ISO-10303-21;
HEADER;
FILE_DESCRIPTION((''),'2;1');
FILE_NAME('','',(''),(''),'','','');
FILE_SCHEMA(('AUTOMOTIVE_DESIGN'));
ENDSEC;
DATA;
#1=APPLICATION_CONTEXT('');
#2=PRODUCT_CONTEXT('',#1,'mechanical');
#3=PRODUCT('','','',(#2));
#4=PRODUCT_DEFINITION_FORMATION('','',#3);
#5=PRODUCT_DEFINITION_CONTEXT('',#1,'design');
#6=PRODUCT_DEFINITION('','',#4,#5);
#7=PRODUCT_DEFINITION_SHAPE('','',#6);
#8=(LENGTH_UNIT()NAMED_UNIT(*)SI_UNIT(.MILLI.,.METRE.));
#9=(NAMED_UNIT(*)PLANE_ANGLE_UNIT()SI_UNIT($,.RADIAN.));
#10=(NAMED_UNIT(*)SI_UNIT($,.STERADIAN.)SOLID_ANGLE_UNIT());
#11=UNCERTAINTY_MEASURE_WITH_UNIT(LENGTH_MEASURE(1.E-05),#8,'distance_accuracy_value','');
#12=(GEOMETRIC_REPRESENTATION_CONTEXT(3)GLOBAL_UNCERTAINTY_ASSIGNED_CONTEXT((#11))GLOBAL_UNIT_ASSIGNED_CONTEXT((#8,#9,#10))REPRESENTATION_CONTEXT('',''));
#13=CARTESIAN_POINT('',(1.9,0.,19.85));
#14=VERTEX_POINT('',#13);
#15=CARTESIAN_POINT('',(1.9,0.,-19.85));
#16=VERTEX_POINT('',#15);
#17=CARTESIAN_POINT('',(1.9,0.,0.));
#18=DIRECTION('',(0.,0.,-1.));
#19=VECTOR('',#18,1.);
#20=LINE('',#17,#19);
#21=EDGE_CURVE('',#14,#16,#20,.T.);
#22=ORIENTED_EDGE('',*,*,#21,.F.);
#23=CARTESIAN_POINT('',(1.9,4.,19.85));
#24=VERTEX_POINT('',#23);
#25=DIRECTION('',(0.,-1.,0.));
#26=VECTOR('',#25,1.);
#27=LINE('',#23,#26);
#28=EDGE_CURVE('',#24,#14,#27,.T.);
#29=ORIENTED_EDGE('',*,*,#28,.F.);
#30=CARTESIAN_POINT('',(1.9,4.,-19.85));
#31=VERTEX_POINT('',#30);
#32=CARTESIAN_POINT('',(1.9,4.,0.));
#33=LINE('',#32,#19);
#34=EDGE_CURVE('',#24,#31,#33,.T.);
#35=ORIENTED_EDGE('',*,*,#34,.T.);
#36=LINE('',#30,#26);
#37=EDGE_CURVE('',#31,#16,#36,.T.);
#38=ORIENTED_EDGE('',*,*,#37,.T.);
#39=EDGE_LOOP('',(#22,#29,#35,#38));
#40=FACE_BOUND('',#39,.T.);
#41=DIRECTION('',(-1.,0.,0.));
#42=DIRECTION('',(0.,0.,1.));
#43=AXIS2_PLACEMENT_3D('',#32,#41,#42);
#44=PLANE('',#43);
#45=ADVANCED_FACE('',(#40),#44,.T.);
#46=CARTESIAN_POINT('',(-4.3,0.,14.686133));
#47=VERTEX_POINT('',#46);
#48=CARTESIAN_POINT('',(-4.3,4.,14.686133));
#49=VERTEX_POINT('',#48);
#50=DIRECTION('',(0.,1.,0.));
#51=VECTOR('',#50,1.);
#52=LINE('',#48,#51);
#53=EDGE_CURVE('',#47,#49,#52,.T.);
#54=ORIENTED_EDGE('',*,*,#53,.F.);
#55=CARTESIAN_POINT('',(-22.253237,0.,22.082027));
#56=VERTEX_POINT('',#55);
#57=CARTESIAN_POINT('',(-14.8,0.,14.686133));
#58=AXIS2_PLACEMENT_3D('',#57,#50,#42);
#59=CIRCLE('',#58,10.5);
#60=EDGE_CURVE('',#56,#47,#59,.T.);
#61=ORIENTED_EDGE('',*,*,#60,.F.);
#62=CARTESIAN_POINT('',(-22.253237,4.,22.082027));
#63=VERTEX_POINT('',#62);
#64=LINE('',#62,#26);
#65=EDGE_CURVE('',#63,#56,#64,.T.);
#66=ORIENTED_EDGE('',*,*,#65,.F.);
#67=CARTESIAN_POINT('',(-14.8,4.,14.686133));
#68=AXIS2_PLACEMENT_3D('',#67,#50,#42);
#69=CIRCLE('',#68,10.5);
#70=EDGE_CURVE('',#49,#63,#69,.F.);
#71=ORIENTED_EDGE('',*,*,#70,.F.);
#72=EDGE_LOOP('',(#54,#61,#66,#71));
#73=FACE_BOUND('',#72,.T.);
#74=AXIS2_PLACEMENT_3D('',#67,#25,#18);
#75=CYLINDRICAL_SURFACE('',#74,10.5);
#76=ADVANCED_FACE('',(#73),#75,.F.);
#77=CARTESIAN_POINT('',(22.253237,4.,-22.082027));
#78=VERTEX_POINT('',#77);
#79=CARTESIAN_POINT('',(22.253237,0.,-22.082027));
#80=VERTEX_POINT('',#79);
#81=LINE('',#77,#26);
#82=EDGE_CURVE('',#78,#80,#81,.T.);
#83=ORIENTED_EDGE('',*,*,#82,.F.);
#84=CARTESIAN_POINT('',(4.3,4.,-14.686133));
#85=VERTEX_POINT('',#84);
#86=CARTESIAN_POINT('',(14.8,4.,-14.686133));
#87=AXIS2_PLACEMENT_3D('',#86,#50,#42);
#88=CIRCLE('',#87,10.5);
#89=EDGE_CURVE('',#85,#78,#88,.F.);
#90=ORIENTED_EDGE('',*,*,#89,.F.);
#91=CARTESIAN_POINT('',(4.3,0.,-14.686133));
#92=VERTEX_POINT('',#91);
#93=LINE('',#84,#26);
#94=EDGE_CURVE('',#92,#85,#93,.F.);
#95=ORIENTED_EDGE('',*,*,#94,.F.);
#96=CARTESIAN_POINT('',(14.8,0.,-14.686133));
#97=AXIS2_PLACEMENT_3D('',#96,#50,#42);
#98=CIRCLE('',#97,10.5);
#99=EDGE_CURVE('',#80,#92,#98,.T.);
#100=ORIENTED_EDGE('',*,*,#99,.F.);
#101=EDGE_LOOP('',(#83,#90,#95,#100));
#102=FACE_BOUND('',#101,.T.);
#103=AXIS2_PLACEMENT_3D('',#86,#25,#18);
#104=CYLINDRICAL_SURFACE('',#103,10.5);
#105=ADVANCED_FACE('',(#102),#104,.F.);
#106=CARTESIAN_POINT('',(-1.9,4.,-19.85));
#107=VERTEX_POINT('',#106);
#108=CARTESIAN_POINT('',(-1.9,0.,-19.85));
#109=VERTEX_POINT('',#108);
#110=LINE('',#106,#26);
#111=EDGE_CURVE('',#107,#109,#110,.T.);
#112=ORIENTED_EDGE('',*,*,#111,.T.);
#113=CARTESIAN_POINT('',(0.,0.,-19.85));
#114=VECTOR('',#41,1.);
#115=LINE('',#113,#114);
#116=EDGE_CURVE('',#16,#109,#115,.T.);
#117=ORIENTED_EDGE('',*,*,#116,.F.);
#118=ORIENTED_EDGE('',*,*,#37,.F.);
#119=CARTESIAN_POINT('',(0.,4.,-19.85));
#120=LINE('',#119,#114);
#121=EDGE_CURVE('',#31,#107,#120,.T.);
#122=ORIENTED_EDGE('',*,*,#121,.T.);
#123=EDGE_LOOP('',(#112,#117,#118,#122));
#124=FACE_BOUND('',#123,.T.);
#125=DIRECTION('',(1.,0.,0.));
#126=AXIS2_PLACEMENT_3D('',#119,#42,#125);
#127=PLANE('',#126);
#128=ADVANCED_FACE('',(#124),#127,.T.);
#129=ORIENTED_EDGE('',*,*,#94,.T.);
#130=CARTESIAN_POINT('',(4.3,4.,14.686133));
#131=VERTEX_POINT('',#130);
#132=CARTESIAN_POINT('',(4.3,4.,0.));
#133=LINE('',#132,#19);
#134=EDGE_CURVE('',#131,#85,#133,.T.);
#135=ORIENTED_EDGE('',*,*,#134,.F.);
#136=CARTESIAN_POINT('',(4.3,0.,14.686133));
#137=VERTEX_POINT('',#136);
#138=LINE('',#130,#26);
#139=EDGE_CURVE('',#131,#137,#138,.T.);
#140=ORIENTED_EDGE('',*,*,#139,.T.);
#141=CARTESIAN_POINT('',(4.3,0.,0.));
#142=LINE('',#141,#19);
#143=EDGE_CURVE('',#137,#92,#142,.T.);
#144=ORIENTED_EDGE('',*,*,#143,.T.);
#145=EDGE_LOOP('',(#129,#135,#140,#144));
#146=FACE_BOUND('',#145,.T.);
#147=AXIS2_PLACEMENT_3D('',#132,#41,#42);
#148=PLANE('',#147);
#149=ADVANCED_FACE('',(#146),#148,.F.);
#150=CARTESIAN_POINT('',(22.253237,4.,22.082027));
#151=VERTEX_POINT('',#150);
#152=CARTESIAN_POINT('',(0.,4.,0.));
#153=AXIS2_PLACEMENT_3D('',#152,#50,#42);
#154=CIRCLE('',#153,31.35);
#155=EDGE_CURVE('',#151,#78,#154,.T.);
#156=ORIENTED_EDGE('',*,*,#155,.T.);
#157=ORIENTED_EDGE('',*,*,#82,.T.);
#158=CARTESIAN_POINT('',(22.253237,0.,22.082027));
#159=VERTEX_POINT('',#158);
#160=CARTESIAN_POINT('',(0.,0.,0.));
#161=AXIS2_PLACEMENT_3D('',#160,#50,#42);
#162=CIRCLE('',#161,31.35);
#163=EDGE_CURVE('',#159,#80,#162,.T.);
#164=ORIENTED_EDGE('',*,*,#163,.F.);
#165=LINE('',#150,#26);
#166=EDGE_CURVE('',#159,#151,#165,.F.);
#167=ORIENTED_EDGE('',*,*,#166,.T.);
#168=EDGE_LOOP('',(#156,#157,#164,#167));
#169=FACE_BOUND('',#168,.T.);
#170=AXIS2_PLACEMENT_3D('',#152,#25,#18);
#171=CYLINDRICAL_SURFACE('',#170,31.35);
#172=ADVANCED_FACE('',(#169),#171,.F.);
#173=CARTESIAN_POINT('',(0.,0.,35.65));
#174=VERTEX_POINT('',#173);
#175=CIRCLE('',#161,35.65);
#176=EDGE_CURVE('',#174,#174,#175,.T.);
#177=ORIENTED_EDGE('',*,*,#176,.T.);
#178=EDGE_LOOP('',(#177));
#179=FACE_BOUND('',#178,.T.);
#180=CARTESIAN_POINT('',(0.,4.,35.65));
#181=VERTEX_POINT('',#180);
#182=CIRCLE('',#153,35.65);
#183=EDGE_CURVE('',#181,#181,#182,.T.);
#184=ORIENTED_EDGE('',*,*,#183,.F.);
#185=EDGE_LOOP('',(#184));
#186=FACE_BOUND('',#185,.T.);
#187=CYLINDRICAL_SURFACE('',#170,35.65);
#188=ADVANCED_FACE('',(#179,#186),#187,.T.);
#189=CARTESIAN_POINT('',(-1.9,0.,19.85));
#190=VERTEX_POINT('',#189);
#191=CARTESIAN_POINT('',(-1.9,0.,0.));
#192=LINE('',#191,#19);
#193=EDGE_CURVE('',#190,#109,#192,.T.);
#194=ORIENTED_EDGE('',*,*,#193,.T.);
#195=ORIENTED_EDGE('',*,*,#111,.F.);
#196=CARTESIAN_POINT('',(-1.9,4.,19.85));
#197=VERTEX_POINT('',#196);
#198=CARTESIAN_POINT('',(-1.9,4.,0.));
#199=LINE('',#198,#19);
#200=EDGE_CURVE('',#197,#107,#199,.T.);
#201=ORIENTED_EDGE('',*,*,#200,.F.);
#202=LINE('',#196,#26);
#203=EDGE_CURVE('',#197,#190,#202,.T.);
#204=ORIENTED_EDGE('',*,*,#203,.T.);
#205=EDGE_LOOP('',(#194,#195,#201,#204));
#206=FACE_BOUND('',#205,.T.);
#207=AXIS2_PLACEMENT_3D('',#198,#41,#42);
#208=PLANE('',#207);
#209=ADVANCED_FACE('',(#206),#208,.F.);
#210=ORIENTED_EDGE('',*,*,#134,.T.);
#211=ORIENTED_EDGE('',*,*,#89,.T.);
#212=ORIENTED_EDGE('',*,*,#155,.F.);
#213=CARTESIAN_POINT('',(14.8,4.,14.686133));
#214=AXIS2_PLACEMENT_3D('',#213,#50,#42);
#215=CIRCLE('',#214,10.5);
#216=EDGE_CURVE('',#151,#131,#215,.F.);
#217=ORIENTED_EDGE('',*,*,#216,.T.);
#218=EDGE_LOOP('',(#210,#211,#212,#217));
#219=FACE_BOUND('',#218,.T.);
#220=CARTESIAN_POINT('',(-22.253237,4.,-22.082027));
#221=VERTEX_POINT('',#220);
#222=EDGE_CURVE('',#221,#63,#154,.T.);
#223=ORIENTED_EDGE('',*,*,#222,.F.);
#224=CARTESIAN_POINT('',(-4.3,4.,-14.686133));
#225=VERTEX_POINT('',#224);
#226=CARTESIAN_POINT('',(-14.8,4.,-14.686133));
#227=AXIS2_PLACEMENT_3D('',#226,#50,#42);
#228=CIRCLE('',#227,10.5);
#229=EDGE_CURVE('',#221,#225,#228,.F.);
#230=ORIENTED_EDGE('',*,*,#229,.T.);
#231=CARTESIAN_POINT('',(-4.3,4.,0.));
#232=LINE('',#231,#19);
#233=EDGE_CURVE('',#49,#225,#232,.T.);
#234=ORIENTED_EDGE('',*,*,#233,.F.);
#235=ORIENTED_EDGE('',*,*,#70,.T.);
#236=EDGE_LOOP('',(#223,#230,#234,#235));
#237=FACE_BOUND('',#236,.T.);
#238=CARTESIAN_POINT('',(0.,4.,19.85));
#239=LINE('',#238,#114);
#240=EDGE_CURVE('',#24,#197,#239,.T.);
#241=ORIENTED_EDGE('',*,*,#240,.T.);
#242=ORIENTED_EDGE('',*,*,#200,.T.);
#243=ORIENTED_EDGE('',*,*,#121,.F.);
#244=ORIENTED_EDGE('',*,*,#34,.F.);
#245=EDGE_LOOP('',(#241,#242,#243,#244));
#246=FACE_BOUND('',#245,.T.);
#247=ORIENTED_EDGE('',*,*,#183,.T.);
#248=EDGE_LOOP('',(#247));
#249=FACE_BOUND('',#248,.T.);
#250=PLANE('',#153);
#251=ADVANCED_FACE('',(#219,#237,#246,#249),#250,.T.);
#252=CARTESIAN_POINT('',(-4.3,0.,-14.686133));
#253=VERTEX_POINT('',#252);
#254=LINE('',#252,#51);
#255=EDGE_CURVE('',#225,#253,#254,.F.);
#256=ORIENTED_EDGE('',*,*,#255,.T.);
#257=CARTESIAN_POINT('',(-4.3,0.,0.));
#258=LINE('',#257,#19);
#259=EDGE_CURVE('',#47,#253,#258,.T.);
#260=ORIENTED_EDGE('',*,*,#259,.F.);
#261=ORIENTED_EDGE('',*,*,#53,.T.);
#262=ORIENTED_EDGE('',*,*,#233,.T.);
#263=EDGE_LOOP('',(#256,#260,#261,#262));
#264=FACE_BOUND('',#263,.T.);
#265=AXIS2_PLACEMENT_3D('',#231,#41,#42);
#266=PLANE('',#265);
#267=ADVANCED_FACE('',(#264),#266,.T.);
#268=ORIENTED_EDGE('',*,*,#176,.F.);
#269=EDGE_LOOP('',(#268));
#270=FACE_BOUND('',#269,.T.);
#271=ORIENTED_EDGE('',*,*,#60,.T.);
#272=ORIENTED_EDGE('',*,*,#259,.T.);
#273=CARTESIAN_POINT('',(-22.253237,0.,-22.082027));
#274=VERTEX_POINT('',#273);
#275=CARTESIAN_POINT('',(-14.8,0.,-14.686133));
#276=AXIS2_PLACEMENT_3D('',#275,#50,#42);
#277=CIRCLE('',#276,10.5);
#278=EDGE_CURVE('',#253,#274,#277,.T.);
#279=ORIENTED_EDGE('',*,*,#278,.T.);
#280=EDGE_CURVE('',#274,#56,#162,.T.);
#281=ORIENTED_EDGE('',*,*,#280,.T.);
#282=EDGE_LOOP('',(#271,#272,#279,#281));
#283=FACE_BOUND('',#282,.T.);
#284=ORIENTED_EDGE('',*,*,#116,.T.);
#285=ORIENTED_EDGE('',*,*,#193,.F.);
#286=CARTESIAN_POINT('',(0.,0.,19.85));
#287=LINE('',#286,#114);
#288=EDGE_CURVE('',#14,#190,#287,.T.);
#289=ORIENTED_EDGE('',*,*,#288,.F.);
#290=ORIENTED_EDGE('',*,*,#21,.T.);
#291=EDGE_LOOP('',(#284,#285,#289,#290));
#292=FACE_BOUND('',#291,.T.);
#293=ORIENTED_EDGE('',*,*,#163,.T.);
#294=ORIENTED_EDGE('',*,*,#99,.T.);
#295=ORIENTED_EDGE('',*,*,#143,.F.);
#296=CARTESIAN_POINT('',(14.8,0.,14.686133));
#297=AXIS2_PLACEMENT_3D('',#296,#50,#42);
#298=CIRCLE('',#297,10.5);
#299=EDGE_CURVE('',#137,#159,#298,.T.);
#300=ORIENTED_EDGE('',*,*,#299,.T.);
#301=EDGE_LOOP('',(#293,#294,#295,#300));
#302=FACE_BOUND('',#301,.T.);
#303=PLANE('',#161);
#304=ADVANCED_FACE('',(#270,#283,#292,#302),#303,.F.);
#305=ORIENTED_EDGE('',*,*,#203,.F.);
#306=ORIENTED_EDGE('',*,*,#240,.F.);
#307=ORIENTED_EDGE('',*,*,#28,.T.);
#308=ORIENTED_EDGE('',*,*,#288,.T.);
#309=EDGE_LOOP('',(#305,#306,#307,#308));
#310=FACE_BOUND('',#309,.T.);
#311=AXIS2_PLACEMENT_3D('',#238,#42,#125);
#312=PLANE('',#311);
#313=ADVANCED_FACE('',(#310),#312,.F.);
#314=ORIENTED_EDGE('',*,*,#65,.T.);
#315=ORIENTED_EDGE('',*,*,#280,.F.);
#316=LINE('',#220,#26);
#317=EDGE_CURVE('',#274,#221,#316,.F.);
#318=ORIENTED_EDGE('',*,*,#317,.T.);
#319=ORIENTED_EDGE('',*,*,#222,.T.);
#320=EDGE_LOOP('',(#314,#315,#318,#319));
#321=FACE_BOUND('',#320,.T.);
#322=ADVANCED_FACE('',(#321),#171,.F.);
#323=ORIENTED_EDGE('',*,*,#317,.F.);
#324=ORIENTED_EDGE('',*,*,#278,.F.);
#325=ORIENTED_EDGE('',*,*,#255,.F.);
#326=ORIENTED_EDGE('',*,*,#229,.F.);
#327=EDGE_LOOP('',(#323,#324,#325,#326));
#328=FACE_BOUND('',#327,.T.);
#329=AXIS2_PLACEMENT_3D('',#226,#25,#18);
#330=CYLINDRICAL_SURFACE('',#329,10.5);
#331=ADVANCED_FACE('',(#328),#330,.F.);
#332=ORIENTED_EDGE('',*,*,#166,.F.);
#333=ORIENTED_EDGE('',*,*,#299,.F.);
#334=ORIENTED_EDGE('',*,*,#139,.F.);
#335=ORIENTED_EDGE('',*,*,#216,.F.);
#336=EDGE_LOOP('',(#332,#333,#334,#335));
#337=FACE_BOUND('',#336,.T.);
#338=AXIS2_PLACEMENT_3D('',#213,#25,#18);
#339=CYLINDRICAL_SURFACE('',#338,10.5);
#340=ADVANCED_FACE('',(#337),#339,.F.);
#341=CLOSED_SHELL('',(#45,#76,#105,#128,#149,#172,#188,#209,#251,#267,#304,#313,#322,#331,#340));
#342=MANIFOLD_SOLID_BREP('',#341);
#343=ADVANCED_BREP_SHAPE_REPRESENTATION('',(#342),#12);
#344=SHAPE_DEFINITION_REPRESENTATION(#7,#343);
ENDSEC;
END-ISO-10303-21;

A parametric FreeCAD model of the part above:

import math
import FreeCAD as App
import Part
import Sketcher


def edges_at(feature, points):
    """Names of the edges that pass closest to the given points."""
    edges = feature.Shape.Edges
    near = lambda p: min(range(len(edges)), key=lambda i: edges[i].distToShape(Part.Vertex(*p))[0])
    return sorted({f"Edge{near(p) + 1}" for p in points})


def add_polygon(sketch, points):
    """Adds a closed chain of lines whose ends are joined by coincident constraints."""
    first, n = sketch.GeometryCount, len(points)
    for a, b in zip(points, points[1:] + points[:1]):
        sketch.addGeometry(Part.LineSegment(App.Vector(*a, 0), App.Vector(*b, 0)), False)
    for i in range(n):
        sketch.addConstraint(Sketcher.Constraint("Coincident", first + i, 2, first + (i + 1) % n, 1))

doc = App.newDocument("Part")
body = doc.addObject("PartDesign::Body", "Body")

sketch1 = body.newObject("Sketcher::SketchObject", "Sketch")
sketch1.AttachmentSupport = (doc.getObject("XZ_Plane"), [""])
sketch1.MapMode = "FlatFace"
sketch1.addGeometry(Part.Circle(App.Vector(0, 0, 0), App.Vector(0, 0, 1), 35.65), False)
sketch1.addGeometry(Part.LineSegment(App.Vector(-4.3, -31.053703, 0), App.Vector(-4.3, 31.053703, 0)), False)
sketch1.addGeometry(Part.ArcOfCircle(Part.Circle(App.Vector(0, 0, 0), App.Vector(0, 0, 1), 31.35), math.radians(97.883604), math.radians(262.116396)), False)
add_polygon(sketch1, [(1.9, 19.85), (-1.9, 19.85), (-1.9, -19.85), (1.9, -19.85)])
sketch1.addGeometry(Part.ArcOfCircle(Part.Circle(App.Vector(0, 0, 0), App.Vector(0, 0, 1), 31.35), math.radians(-82.116396), math.radians(82.116396)), False)
sketch1.addGeometry(Part.LineSegment(App.Vector(4.3, 31.053703, 0), App.Vector(4.3, -31.053703, 0)), False)
sketch1.addConstraint([
    Sketcher.Constraint("Coincident", 1, 1, 2, 2),
    Sketcher.Constraint("Coincident", 2, 1, 1, 2),
    Sketcher.Constraint("Coincident", 7, 1, 8, 2),
    Sketcher.Constraint("Coincident", 8, 1, 7, 2),
    Sketcher.Constraint("Vertical", 1),
    Sketcher.Constraint("Horizontal", 3),
    Sketcher.Constraint("Vertical", 4),
    Sketcher.Constraint("Horizontal", 5),
    Sketcher.Constraint("Vertical", 6),
    Sketcher.Constraint("Vertical", 8),
    Sketcher.Constraint("Coincident", 0, 3, -1, 1),
    Sketcher.Constraint("Coincident", 2, 3, -1, 1),
    Sketcher.Constraint("Coincident", 7, 3, -1, 1),
    Sketcher.Constraint("Equal", 2, 7),
    Sketcher.Constraint("Symmetric", 3, 2, 5, 2, -1, 1),
    Sketcher.Constraint("Horizontal", 1, 1, 7, 1),
    Sketcher.Constraint("Diameter", 0, 71.3),
    Sketcher.Constraint("Radius", 2, 31.35),
    Sketcher.Constraint("DistanceX", 3, 2, 3, 1, 3.8),
    Sketcher.Constraint("DistanceY", 4, 2, 4, 1, 39.7),
    Sketcher.Constraint("DistanceX", 1, 1, -1, 1, 4.3),
])
pad1 = body.newObject("PartDesign::Pad", "Pad")
pad1.Profile = sketch1
pad1.Length = 4
pad1.Reversed = True
doc.recompute()

fillet = body.newObject("PartDesign::Fillet", "Fillet")
fillet.Base = (pad1, edges_at(pad1, [
    (4.3, 2, -31.054),
    (4.3, 2, 31.054),
    (-4.3, 2, 31.054),
    (-4.3, 2, -31.054),
]))
fillet.Radius = 10.5

doc.recompute()
